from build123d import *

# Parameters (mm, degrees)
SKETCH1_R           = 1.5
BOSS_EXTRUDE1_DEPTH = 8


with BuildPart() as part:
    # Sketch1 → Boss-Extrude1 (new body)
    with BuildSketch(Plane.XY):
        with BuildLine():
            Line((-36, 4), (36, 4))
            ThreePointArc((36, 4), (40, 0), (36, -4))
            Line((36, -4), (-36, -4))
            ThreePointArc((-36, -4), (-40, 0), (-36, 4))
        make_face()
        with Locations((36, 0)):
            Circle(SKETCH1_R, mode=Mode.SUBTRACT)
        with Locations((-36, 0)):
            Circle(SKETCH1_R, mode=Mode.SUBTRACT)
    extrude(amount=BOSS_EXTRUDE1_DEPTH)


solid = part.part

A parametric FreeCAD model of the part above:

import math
import FreeCAD as App
import Part
import Sketcher
from FreeCAD import Vector
Q = App.Units.Quantity

doc = App.newDocument("Part")
body = doc.addObject("PartDesign::Body", "Body")

# Sketch on XY plane
sketch1 = doc.addObject("Sketcher::SketchObject", "Sketch")
body.addObject(sketch1)
sketch1.AttachmentSupport = (doc.XY_Plane, [""])
sketch1.MapMode = "FlatFace"
sketch1.addGeometry(Part.LineSegment(Vector(36, 4, 0), Vector(-36, 4, 0)), False)
sketch1.addGeometry(Part.ArcOfCircle(Part.Circle(Vector(-36, 0, 0), Vector(0, 0, 1), 4), math.radians(90), math.radians(270)), False)
sketch1.addGeometry(Part.LineSegment(Vector(-36, -4, 0), Vector(36, -4, 0)), False)
sketch1.addGeometry(Part.ArcOfCircle(Part.Circle(Vector(36, 0, 0), Vector(0, 0, 1), 4), math.radians(-90), math.radians(90)), False)
sketch1.addGeometry(Part.Circle(Vector(36, 0, 0), Vector(0, 0, 1), 1.5), False)
sketch1.addGeometry(Part.Circle(Vector(-36, 0, 0), Vector(0, 0, 1), 1.5), False)
sketch1.addConstraint(Sketcher.Constraint("Tangent", 0, 2, 1, 1))
sketch1.addConstraint(Sketcher.Constraint("Tangent", 1, 2, 2, 1))
sketch1.addConstraint(Sketcher.Constraint("Tangent", 2, 2, 3, 1))
sketch1.addConstraint(Sketcher.Constraint("Tangent", 3, 2, 0, 1))
sketch1.addConstraint(Sketcher.Constraint("Horizontal", 0))
sketch1.addConstraint(Sketcher.Constraint("Horizontal", 2))
sketch1.addConstraint(Sketcher.Constraint("Coincident", 4, 3, 3, 3))
sketch1.addConstraint(Sketcher.Constraint("Coincident", 5, 3, 1, 3))
sketch1.addConstraint(Sketcher.Constraint("Equal", 4, 5))
sketch1.addConstraint(Sketcher.Constraint("Symmetric", 1, 3, 3, 3, -1, 1))
sketch1.addConstraint(Sketcher.Constraint("Diameter", 4, Q("3 mm")))
sketch1.addConstraint(Sketcher.Constraint("Radius", 1, Q("4 mm")))
sketch1.addConstraint(Sketcher.Constraint("DistanceX", 0, 2, 0, 1, Q("72 mm")))
pad1 = doc.addObject("PartDesign::Pad", "Pad")
body.addObject(pad1)
pad1.Profile = sketch1
pad1.Length = 8

doc.recompute()
